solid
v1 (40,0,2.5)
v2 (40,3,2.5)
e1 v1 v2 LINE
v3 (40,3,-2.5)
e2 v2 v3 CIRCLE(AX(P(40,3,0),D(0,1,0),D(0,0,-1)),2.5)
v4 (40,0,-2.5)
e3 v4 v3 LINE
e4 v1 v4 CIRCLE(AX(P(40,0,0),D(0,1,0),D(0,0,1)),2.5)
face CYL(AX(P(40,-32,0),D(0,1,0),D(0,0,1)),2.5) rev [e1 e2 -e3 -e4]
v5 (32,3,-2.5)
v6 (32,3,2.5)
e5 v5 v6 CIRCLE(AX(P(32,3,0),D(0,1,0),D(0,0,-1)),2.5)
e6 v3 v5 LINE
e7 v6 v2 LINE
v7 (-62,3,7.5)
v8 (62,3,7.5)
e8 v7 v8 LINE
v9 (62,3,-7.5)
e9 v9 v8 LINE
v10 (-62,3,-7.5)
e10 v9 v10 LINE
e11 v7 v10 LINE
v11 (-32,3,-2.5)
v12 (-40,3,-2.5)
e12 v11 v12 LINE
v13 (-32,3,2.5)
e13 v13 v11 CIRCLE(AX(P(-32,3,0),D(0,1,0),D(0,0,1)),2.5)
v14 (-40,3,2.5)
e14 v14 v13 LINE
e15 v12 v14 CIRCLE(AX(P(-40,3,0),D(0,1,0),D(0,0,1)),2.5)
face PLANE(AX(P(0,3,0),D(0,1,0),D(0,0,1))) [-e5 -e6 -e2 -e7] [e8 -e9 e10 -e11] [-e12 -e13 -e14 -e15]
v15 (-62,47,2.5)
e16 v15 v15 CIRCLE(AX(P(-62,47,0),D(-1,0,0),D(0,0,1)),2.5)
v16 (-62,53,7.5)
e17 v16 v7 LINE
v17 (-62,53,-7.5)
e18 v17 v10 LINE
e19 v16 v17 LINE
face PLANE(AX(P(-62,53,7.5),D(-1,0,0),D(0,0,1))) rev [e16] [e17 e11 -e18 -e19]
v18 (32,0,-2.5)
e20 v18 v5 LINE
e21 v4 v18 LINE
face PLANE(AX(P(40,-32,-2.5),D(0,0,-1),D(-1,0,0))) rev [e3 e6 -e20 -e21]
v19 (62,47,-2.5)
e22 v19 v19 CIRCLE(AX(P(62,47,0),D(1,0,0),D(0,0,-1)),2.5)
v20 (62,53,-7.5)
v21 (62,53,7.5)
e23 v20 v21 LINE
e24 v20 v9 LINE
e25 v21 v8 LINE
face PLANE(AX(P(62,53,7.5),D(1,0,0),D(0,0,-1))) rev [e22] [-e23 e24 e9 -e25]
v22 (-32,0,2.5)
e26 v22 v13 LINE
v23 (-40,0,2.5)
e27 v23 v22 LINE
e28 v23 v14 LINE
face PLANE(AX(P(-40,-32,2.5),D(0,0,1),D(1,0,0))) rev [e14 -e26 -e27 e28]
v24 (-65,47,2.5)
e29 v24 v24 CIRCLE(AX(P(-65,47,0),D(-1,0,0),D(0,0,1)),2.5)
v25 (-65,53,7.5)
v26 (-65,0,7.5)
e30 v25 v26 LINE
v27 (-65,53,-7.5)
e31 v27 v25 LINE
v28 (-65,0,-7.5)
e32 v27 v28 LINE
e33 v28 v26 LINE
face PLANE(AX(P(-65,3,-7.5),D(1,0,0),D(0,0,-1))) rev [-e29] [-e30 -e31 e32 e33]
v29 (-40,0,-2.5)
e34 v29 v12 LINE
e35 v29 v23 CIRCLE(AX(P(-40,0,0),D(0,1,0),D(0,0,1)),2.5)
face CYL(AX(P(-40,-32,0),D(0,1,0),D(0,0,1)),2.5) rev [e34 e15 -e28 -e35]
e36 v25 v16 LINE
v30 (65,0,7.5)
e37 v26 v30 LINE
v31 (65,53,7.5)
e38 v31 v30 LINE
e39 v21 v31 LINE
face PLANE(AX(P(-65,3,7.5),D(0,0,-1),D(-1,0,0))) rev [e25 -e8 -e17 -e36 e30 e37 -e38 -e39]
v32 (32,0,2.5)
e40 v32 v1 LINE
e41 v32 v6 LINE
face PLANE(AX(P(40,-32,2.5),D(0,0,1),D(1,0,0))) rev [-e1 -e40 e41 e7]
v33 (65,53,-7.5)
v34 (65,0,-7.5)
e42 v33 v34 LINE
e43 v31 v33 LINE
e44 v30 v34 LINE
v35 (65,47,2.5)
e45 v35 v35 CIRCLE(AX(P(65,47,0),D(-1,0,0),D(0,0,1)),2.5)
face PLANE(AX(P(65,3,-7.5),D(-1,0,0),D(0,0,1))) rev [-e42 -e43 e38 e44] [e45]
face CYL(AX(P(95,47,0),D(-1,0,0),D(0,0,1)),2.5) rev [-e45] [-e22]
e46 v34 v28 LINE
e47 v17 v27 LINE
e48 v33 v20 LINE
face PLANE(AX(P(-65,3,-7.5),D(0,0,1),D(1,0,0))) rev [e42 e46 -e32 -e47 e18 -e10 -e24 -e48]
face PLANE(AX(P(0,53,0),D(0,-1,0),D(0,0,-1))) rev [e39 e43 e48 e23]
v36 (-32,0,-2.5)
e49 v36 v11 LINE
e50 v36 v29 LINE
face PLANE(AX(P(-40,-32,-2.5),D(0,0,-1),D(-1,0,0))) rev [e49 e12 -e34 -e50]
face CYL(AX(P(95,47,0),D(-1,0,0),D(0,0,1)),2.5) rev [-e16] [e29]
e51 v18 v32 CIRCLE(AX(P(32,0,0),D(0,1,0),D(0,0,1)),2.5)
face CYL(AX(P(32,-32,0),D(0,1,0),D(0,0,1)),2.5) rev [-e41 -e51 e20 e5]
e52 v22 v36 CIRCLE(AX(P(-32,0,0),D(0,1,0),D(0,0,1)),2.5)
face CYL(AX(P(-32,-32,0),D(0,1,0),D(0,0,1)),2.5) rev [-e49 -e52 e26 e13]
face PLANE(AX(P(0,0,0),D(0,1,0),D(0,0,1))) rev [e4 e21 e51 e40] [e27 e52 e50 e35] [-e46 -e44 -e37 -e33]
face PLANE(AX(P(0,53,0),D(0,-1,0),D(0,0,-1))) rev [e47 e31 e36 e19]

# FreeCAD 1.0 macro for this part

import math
import FreeCAD as App
import Part
import Sketcher


def add_polygon(sketch, points):
    """Adds a closed chain of lines whose ends are joined by coincident constraints."""
    first, n = sketch.GeometryCount, len(points)
    for a, b in zip(points, points[1:] + points[:1]):
        sketch.addGeometry(Part.LineSegment(App.Vector(*a, 0), App.Vector(*b, 0)), False)
    for i in range(n):
        sketch.addConstraint(Sketcher.Constraint("Coincident", first + i, 2, first + (i + 1) % n, 1))

doc = App.newDocument("Part")
body = doc.addObject("PartDesign::Body", "Body")

sketch1 = body.newObject("Sketcher::SketchObject", "Sketch")
sketch1.AttachmentSupport = (doc.getObject("XZ_Plane"), [""])
sketch1.MapMode = "FlatFace"
add_polygon(sketch1, [(-65, -8), (-65, 8), (65, 8), (65, -8)])
sketch1.addConstraint([
    Sketcher.Constraint("Vertical", 0),
    Sketcher.Constraint("Horizontal", 1),
    Sketcher.Constraint("Vertical", 2),
    Sketcher.Constraint("Horizontal", 3),
    Sketcher.Constraint("Symmetric", 0, 2, 2, 2, -1, 1),
    Sketcher.Constraint("DistanceX", 1, 1, 1, 2, 130.0),
    Sketcher.Constraint("DistanceY", 0, 1, 0, 2, 15.0),
])
pad1 = body.newObject("PartDesign::Pad", "Pad")
pad1.Profile = sketch1
pad1.Length = 3
pad1.Reversed = True

sketch2 = body.newObject("Sketcher::SketchObject", "Sketch001")
sketch2.AttachmentSupport = (doc.getObject("XZ_Plane"), [""])
sketch2.MapMode = "FlatFace"
sketch2.AttachmentOffset = App.Placement(App.Vector(0, 0, -3), App.Rotation())
sketch2.addGeometry([
    Part.LineSegment(App.Vector(-32, -2.5, 0), App.Vector(-40, -2.5, 0)),
    Part.ArcOfCircle(Part.Circle(App.Vector(-40, 0, 0), App.Vector(0, 0, 1), 2.5), math.radians(90), math.radians(270)),
    Part.LineSegment(App.Vector(-40, 2.5, 0), App.Vector(-32, 2.5, 0)),
    Part.ArcOfCircle(Part.Circle(App.Vector(-32, 0, 0), App.Vector(0, 0, 1), 2.5), math.radians(-90), math.radians(90)),
    Part.LineSegment(App.Vector(32, 2.5, 0), App.Vector(40, 2.5, 0)),
    Part.ArcOfCircle(Part.Circle(App.Vector(40, 0, 0), App.Vector(0, 0, 1), 2.5), math.radians(-90), math.radians(90)),
    Part.LineSegment(App.Vector(40, -2.5, 0), App.Vector(32, -2.5, 0)),
    Part.ArcOfCircle(Part.Circle(App.Vector(32, 0, 0), App.Vector(0, 0, 1), 2.5), math.radians(90), math.radians(270)),
], False)
sketch2.addConstraint([
    Sketcher.Constraint("Tangent", 0, 2, 1, 2),
    Sketcher.Constraint("Tangent", 1, 1, 2, 1),
    Sketcher.Constraint("Tangent", 2, 2, 3, 2),
    Sketcher.Constraint("Tangent", 3, 1, 0, 1),
    Sketcher.Constraint("Tangent", 4, 2, 5, 2),
    Sketcher.Constraint("Tangent", 5, 1, 6, 1),
    Sketcher.Constraint("Tangent", 6, 2, 7, 2),
    Sketcher.Constraint("Tangent", 7, 1, 4, 1),
    Sketcher.Constraint("Horizontal", 0),
    Sketcher.Constraint("Horizontal", 2),
    Sketcher.Constraint("Horizontal", 4),
    Sketcher.Constraint("Horizontal", 6),
    Sketcher.Constraint("Equal", 3, 5),
    Sketcher.Constraint("Symmetric", 1, 3, 5, 3, -1, 1),
    Sketcher.Constraint("Symmetric", 3, 3, 7, 3, -2),
    Sketcher.Constraint("Radius", 1, 2.5),
    Sketcher.Constraint("DistanceX", 0, 2, 0, 1, 8.0),
    Sketcher.Constraint("DistanceX", 1, 3, -1, 1, 40.0),
])
pocket1 = body.newObject("PartDesign::Pocket", "Pocket")
pocket1.Profile = sketch2
pocket1.Length = 35
pocket1.Reversed = True

sketch3 = body.newObject("Sketcher::SketchObject", "Sketch002")
sketch3.AttachmentSupport = (doc.getObject("XZ_Plane"), [""])
sketch3.MapMode = "FlatFace"
sketch3.AttachmentOffset = App.Placement(App.Vector(0, 0, -3), App.Rotation())
add_polygon(sketch3, [(-65, -7.5), (-65, 7.5), (-62, 7.5), (-62, -7.5)])
add_polygon(sketch3, [(62, -7.5), (62, 7.5), (65, 7.5), (65, -7.5)])
sketch3.addConstraint([
    Sketcher.Constraint("Vertical", 0),
    Sketcher.Constraint("Horizontal", 1),
    Sketcher.Constraint("Vertical", 2),
    Sketcher.Constraint("Horizontal", 3),
    Sketcher.Constraint("Vertical", 4),
    Sketcher.Constraint("Horizontal", 5),
    Sketcher.Constraint("Vertical", 6),
    Sketcher.Constraint("Horizontal", 7),
    Sketcher.Constraint("Symmetric", 2, 2, 4, 2, -1, 1),
    Sketcher.Constraint("Symmetric", 0, 2, 6, 2, -1, 1),
    Sketcher.Constraint("Horizontal", 1, 2, 4, 2),
    Sketcher.Constraint("DistanceX", 1, 1, 1, 2, 3.0),
    Sketcher.Constraint("DistanceY", 0, 1, 0, 2, 15.0),
    Sketcher.Constraint("DistanceX", 0, 2, -1, 1, 65.0),
])
pad2 = body.newObject("PartDesign::Pad", "Pad001")
pad2.Profile = sketch3
pad2.Length = 50
pad2.Reversed = True

sketch4 = body.newObject("Sketcher::SketchObject", "Sketch003")
sketch4.AttachmentSupport = (doc.getObject("YZ_Plane"), [""])
sketch4.MapMode = "FlatFace"
sketch4.AttachmentOffset = App.Placement(App.Vector(0, 0, -65), App.Rotation())
sketch4.addGeometry(Part.Circle(App.Vector(47, 0, 0), App.Vector(0, 0, 1), 2.5), False)
sketch4.addConstraint([
    Sketcher.Constraint("PointOnObject", 0, 3, -1),
    Sketcher.Constraint("Diameter", 0, 5.0),
    Sketcher.Constraint("DistanceX", -1, 1, 0, 3, 47.0),
])
pocket2 = body.newObject("PartDesign::Pocket", "Pocket001")
pocket2.Profile = sketch4
pocket2.Length = 160
pocket2.Reversed = True

doc.recompute()
